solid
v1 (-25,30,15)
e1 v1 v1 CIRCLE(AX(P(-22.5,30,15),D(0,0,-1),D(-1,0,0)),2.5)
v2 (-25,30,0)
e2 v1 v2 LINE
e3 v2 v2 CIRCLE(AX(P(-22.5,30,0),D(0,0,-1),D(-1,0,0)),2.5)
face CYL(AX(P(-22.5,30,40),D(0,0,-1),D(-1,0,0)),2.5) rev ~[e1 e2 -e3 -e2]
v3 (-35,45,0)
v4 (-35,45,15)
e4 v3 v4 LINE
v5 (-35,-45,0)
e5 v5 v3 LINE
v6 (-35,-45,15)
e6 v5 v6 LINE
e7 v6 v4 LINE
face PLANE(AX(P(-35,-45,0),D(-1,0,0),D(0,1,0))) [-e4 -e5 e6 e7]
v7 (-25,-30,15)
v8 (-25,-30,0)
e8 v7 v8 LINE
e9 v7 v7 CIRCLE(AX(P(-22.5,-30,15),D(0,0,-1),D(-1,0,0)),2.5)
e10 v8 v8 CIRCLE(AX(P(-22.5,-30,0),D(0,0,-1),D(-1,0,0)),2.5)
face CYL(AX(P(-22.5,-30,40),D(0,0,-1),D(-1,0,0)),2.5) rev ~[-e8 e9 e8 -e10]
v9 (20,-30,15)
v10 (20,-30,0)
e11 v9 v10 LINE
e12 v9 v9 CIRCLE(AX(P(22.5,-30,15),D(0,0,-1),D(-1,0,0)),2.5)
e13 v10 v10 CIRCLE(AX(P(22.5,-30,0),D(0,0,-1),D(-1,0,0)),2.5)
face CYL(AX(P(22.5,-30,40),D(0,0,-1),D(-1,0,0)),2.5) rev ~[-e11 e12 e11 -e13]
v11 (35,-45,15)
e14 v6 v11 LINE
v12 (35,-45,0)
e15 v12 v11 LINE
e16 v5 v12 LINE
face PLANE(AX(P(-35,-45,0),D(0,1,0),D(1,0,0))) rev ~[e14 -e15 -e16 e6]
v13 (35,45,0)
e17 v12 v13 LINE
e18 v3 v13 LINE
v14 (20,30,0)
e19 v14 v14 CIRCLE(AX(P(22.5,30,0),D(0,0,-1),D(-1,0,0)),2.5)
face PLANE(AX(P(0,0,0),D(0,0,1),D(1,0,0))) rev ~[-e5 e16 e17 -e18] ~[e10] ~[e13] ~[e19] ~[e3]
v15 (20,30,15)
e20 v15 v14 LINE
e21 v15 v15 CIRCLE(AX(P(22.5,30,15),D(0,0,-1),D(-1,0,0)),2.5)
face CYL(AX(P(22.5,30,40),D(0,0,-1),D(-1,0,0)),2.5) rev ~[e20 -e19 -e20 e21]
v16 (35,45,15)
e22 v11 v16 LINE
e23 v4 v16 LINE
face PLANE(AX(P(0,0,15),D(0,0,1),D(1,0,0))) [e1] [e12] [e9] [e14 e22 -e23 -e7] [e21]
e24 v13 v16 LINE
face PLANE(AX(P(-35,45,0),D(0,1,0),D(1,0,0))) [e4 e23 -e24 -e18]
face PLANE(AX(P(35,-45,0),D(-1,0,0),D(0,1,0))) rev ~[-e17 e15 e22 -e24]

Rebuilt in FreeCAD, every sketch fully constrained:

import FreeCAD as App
import Part
import Sketcher
from FreeCAD import Vector
Q = App.Units.Quantity


def add_polygon(sketch, points):
    """Adds a closed chain of lines whose ends are joined by coincident constraints."""
    first, n = sketch.GeometryCount, len(points)
    for a, b in zip(points, points[1:] + points[:1]):
        sketch.addGeometry(Part.LineSegment(App.Vector(*a, 0), App.Vector(*b, 0)), False)
    for i in range(n):
        sketch.addConstraint(Sketcher.Constraint("Coincident", first + i, 2, first + (i + 1) % n, 1))

doc = App.newDocument("Part")
body = doc.addObject("PartDesign::Body", "Body")

sketch1 = body.newObject("Sketcher::SketchObject", "Sketch")
sketch1.AttachmentSupport = (doc.getObject("XY_Plane"), [""])
sketch1.MapMode = "FlatFace"
add_polygon(sketch1, [(-35, 45), (-35, -45), (35, -45), (35, 45)])
sketch1.addConstraint([
    Sketcher.Constraint("Vertical", 0),
    Sketcher.Constraint("Horizontal", 1),
    Sketcher.Constraint("Vertical", 2),
    Sketcher.Constraint("Horizontal", 3),
    Sketcher.Constraint("Symmetric", 0, 2, 2, 2, -1, 1),
    Sketcher.Constraint("DistanceX", 1, 1, 1, 2, Q("70 mm")),
    Sketcher.Constraint("DistanceY", 0, 2, 0, 1, Q("90 mm")),
])
pad1 = body.newObject("PartDesign::Pad", "Pad")
pad1.Profile = sketch1
pad1.Length = 15

sketch2 = body.newObject("Sketcher::SketchObject", "Sketch001")
sketch2.AttachmentSupport = (doc.getObject("XY_Plane"), [""])
sketch2.MapMode = "FlatFace"
sketch2.AttachmentOffset = App.Placement(Vector(0, 0, 15), App.Rotation())
sketch2.addGeometry([
    Part.Circle(Vector(-22.5, -30, 0), Vector(0, 0, 1), 2.5),
    Part.Circle(Vector(22.5, -30, 0), Vector(0, 0, 1), 2.5),
    Part.Circle(Vector(22.5, 30, 0), Vector(0, 0, 1), 2.5),
    Part.Circle(Vector(-22.5, 30, 0), Vector(0, 0, 1), 2.5),
], False)
sketch2.addConstraint([
    Sketcher.Constraint("Equal", 0, 1),
    Sketcher.Constraint("Equal", 1, 2),
    Sketcher.Constraint("Equal", 2, 3),
    Sketcher.Constraint("Symmetric", 0, 3, 2, 3, -1, 1),
    Sketcher.Constraint("Symmetric", 1, 3, 3, 3, -1, 1),
    Sketcher.Constraint("Symmetric", 0, 3, 1, 3, -2),
    Sketcher.Constraint("Diameter", 0, Q("5 mm")),
    Sketcher.Constraint("DistanceY", 0, 3, -1, 1, Q("30 mm")),
    Sketcher.Constraint("DistanceX", 0, 3, 1, 3, Q("45 mm")),
])
doc.recompute()
hole = body.newObject("PartDesign::Hole", "Hole")
hole.Profile = sketch2
hole.ThreadType = "None"
hole.Diameter = 5
hole.DepthType = "Dimension"
hole.Depth = 25
hole.DrillPoint = "Flat"

doc.recompute()
